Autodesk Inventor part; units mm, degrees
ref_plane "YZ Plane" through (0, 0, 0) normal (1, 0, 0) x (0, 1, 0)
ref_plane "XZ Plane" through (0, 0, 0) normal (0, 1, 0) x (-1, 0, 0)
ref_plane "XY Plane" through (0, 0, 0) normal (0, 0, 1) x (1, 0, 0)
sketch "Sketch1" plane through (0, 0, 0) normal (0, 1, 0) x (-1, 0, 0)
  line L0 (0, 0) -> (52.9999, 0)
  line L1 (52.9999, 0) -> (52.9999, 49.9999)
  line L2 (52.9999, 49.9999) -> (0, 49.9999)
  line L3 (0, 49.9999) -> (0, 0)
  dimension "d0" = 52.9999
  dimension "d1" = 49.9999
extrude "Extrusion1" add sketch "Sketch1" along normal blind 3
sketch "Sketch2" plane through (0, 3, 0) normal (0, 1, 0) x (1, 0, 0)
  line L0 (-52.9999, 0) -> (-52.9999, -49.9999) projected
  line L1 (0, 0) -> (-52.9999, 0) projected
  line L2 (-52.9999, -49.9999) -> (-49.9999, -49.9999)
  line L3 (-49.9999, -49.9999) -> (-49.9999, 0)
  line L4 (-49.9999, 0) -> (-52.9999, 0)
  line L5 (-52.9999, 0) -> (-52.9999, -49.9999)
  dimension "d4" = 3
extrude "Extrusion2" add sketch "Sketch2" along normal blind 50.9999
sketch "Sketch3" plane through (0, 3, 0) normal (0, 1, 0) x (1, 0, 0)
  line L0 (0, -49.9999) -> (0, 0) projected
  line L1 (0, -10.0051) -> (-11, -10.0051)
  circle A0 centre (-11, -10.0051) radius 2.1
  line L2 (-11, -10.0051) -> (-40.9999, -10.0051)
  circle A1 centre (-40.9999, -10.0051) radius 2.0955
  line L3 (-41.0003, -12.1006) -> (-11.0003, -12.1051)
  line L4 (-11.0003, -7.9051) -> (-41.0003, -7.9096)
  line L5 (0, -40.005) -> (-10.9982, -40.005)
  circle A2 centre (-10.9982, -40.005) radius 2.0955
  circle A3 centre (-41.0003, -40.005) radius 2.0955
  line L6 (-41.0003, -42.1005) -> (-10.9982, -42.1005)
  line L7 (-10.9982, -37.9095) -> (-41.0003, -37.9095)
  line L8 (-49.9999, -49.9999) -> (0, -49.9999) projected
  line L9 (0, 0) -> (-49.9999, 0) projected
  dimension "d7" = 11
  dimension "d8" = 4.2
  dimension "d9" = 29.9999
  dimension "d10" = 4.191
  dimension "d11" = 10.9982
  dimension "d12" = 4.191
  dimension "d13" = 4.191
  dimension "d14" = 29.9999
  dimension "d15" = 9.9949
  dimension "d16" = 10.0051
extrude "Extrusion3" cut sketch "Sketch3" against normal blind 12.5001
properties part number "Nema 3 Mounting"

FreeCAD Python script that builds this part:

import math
import FreeCAD as App
import Part
import Sketcher
from FreeCAD import Vector


def add_polygon(sketch, points):
    """Adds a closed chain of lines whose ends are joined by coincident constraints."""
    first, n = sketch.GeometryCount, len(points)
    for a, b in zip(points, points[1:] + points[:1]):
        sketch.addGeometry(Part.LineSegment(App.Vector(*a, 0), App.Vector(*b, 0)), False)
    for i in range(n):
        sketch.addConstraint(Sketcher.Constraint("Coincident", first + i, 2, first + (i + 1) % n, 1))

doc = App.newDocument("Part")
body = doc.addObject("PartDesign::Body", "Body")

sketch1 = body.newObject("Sketcher::SketchObject", "Sketch")
sketch1.AttachmentSupport = (doc.getObject("XZ_Plane"), [""])
sketch1.MapMode = "FlatFace"
add_polygon(sketch1, [(0, 49.9999), (0, 0), (-52.9999, 0), (-52.9999, 49.9999)])
sketch1.addConstraint([
    Sketcher.Constraint("Vertical", 0),
    Sketcher.Constraint("Horizontal", 1),
    Sketcher.Constraint("Vertical", 2),
    Sketcher.Constraint("Horizontal", 3),
    Sketcher.Constraint("Coincident", 0, 2, -1, 1),
    Sketcher.Constraint("DistanceX", 1, 2, 1, 1, 53.0),
    Sketcher.Constraint("DistanceY", 0, 2, 0, 1, 50.0),
])
pad1 = body.newObject("PartDesign::Pad", "Pad")
pad1.Profile = sketch1
pad1.Length = 3
pad1.Reversed = True

sketch2 = body.newObject("Sketcher::SketchObject", "Sketch001")
sketch2.AttachmentSupport = (doc.getObject("XZ_Plane"), [""])
sketch2.MapMode = "FlatFace"
sketch2.AttachmentOffset = App.Placement(Vector(0, 0, -3), App.Rotation())
add_polygon(sketch2, [(-49.9999, 0), (-52.9999, 0), (-52.9999, 49.9999), (-49.9999, 49.9999)])
sketch2.addConstraint([
    Sketcher.Constraint("Horizontal", 0),
    Sketcher.Constraint("Vertical", 1),
    Sketcher.Constraint("Horizontal", 2),
    Sketcher.Constraint("Vertical", 3),
    Sketcher.Constraint("PointOnObject", 0, 2, -1),
    Sketcher.Constraint("DistanceX", 0, 2, 0, 1, 3.0),
    Sketcher.Constraint("DistanceY", 1, 1, 1, 2, 50.0),
    Sketcher.Constraint("DistanceX", 0, 2, -1, 1, 53.0),
])
pad2 = body.newObject("PartDesign::Pad", "Pad001")
pad2.Profile = sketch2
pad2.Length = 50.9999
pad2.Reversed = True

sketch3 = body.newObject("Sketcher::SketchObject", "Sketch002")
sketch3.AttachmentSupport = (doc.getObject("XZ_Plane"), [""])
sketch3.MapMode = "FlatFace"
sketch3.AttachmentOffset = App.Placement(Vector(0, 0, -3), App.Rotation())
sketch3.addGeometry([
    Part.ArcOfCircle(Part.Circle(Vector(-11, 10.0051, 0), Vector(0, 0, 1), 2.1), math.radians(-90.008185), math.radians(90.008185)),
    Part.LineSegment(Vector(-11.0003, 7.9051, 0), Vector(-41.0003, 7.9096, 0)),
    Part.ArcOfCircle(Part.Circle(Vector(-40.9999, 10.0051, 0), Vector(0, 0, 1), 2.0955), math.radians(90.010937), math.radians(269.989063)),
    Part.LineSegment(Vector(-41.0003, 12.1006, 0), Vector(-11.0003, 12.1051, 0)),
    Part.ArcOfCircle(Part.Circle(Vector(-10.9982, 40.005, 0), Vector(0, 0, 1), 2.0955), math.radians(-90), math.radians(90)),
    Part.LineSegment(Vector(-10.9982, 37.9095, 0), Vector(-41.0003, 37.9095, 0)),
    Part.ArcOfCircle(Part.Circle(Vector(-41.0003, 40.005, 0), Vector(0, 0, 1), 2.0955), math.radians(90), math.radians(270)),
    Part.LineSegment(Vector(-41.0003, 42.1005, 0), Vector(-10.9982, 42.1005, 0)),
], False)
sketch3.addConstraint([
    Sketcher.Constraint("Coincident", 0, 1, 1, 1),
    Sketcher.Constraint("Coincident", 1, 2, 2, 2),
    Sketcher.Constraint("Coincident", 2, 1, 3, 1),
    Sketcher.Constraint("Coincident", 3, 2, 0, 2),
    Sketcher.Constraint("Coincident", 4, 1, 5, 1),
    Sketcher.Constraint("Coincident", 5, 2, 6, 2),
    Sketcher.Constraint("Coincident", 6, 1, 7, 1),
    Sketcher.Constraint("Coincident", 7, 2, 4, 2),
    Sketcher.Constraint("Horizontal", 5),
    Sketcher.Constraint("Horizontal", 7),
    Sketcher.Constraint("Radius", 0, 2.1),
    Sketcher.Constraint("Distance", 1, 30.0),
    Sketcher.Constraint("Distance", 3, 30.0),
    Sketcher.Constraint("DistanceX", 0, 3, -1, 1, 11.0),
    Sketcher.Constraint("DistanceX", 2, 3, 0, 3, 30.0),
    Sketcher.Constraint("DistanceY", 0, 3, 4, 3, 30.0),
    Sketcher.Constraint("DistanceY", 2, 3, 4, 3, 30.0),
    Sketcher.Constraint("DistanceX", 6, 3, 0, 1, 30.0),
    Sketcher.Constraint("DistanceX", 2, 1, 0, 1, 30.0),
    Sketcher.Constraint("DistanceY", 1, 2, 5, 2, 30.0),
    Sketcher.Constraint("Radius", 2, 2.0955),
    Sketcher.Constraint("DistanceY", -1, 1, 0, 3, 10.005),
    Sketcher.Constraint("DistanceX", 4, 3, -1, 1, 10.9982),
    Sketcher.Constraint("DistanceX", 0, 1, -1, 1, 11.0003),
    Sketcher.Constraint("DistanceX", 4, 1, -1, 1, 10.9982),
    Sketcher.Constraint("DistanceX", 7, 2, -1, 1, 10.9982),
    Sketcher.Constraint("DistanceX", 5, 2, 5, 1, 30.002),
    Sketcher.Constraint("DistanceX", 7, 1, 7, 2, 30.002),
])
pocket1 = body.newObject("PartDesign::Pocket", "Pocket")
pocket1.Profile = sketch3
pocket1.Length = 12.5001
pocket1.Reversed = True

doc.recompute()
